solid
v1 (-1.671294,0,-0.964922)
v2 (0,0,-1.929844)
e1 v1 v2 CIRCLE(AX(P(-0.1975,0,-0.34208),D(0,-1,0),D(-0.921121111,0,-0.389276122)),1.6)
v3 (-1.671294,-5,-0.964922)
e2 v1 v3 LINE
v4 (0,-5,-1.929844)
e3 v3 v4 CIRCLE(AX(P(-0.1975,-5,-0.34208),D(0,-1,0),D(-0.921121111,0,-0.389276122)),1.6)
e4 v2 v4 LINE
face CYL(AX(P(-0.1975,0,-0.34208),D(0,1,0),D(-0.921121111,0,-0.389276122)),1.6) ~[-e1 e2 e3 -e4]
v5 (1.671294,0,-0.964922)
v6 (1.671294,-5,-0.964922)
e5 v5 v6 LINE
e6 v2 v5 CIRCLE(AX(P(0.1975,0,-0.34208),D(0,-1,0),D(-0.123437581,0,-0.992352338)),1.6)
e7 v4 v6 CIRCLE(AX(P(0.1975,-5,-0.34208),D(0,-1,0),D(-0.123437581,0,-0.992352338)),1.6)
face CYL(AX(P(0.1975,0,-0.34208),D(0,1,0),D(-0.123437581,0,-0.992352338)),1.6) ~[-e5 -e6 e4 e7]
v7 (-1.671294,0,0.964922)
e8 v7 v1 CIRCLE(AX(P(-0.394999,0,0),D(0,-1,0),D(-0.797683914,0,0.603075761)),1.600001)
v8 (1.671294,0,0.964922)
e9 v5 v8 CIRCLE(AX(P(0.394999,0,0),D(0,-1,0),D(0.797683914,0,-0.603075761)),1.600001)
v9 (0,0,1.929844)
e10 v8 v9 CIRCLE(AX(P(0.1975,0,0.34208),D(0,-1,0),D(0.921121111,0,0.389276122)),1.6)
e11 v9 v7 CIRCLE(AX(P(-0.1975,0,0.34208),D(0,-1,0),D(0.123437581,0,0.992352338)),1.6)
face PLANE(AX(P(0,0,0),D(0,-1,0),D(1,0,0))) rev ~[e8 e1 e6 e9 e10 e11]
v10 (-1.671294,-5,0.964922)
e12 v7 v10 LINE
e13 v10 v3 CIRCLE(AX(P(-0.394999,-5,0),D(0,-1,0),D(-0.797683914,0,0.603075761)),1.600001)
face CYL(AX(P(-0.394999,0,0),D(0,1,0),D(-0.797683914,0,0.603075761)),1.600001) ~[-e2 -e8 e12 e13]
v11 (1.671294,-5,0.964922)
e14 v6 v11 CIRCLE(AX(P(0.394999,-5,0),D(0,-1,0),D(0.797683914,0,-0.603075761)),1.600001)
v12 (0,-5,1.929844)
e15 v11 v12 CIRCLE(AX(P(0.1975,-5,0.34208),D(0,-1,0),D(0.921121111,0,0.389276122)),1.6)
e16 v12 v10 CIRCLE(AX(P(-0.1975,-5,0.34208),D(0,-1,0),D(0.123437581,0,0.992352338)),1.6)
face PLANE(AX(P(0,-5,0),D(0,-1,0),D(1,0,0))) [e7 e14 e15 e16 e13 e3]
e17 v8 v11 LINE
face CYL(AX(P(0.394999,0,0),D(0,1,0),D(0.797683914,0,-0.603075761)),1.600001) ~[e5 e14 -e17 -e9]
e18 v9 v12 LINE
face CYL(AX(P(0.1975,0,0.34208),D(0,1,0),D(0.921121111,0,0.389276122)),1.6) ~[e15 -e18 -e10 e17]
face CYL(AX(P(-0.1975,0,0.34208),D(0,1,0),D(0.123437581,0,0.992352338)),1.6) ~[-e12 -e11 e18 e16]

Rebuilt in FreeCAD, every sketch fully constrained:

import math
import FreeCAD as App
import Part
import Sketcher
from FreeCAD import Vector
Q = App.Units.Quantity

doc = App.newDocument("Part")
body = doc.addObject("PartDesign::Body", "Body")

# Sketch on XZ plane
sketch1 = body.newObject("Sketcher::SketchObject", "Sketch")
sketch1.AttachmentSupport = (doc.getObject("XZ_Plane"), [""])
sketch1.MapMode = "FlatFace"
sketch1.addGeometry(Part.ArcOfCircle(Part.Circle(Vector(0.2, 0.3, 0), Vector(0, 0, 1), 1.6), math.radians(23), math.radians(97)), False)
sketch1.addGeometry(Part.ArcOfCircle(Part.Circle(Vector(-0.2, 0.3, 0), Vector(0, 0, 1), 1.6), math.radians(83), math.radians(157)), False)
sketch1.addGeometry(Part.ArcOfCircle(Part.Circle(Vector(-0.4, 0, 0), Vector(0, 0, 1), 1.6), math.radians(143), math.radians(217)), False)
sketch1.addGeometry(Part.ArcOfCircle(Part.Circle(Vector(-0.2, -0.3, 0), Vector(0, 0, 1), 1.6), math.radians(-157), math.radians(-83)), False)
sketch1.addGeometry(Part.ArcOfCircle(Part.Circle(Vector(0.2, -0.3, 0), Vector(0, 0, 1), 1.6), math.radians(-97), math.radians(-23)), False)
sketch1.addGeometry(Part.ArcOfCircle(Part.Circle(Vector(0.4, 0, 0), Vector(0, 0, 1), 1.6), math.radians(-37), math.radians(37)), False)
sketch1.addConstraint(Sketcher.Constraint("Coincident", 0, 2, 1, 1))
sketch1.addConstraint(Sketcher.Constraint("Coincident", 1, 2, 2, 1))
sketch1.addConstraint(Sketcher.Constraint("Coincident", 2, 2, 3, 1))
sketch1.addConstraint(Sketcher.Constraint("Coincident", 3, 2, 4, 1))
sketch1.addConstraint(Sketcher.Constraint("Coincident", 4, 2, 5, 1))
sketch1.addConstraint(Sketcher.Constraint("Coincident", 5, 2, 0, 1))
sketch1.addConstraint(Sketcher.Constraint("Equal", 0, 1))
sketch1.addConstraint(Sketcher.Constraint("Equal", 1, 2))
sketch1.addConstraint(Sketcher.Constraint("Equal", 2, 3))
sketch1.addConstraint(Sketcher.Constraint("Equal", 3, 4))
sketch1.addConstraint(Sketcher.Constraint("Equal", 4, 5))
sketch1.addConstraint(Sketcher.Constraint("Symmetric", 0, 3, 3, 3, -1, 1))
sketch1.addConstraint(Sketcher.Constraint("Symmetric", 1, 3, 4, 3, -1, 1))
sketch1.addConstraint(Sketcher.Constraint("Symmetric", 2, 3, 5, 3, -1, 1))
sketch1.addConstraint(Sketcher.Constraint("Symmetric", 0, 3, 1, 3, -2))
sketch1.addConstraint(Sketcher.Constraint("PointOnObject", 2, 3, -1))
sketch1.addConstraint(Sketcher.Constraint("Radius", 0, Q("1.6 mm")))
sketch1.addConstraint(Sketcher.Constraint("DistanceX", 2, 3, -1, 1, Q("0.394999 mm")))
sketch1.addConstraint(Sketcher.Constraint("DistanceX", 1, 3, 0, 3, Q("0.395 mm")))
sketch1.addConstraint(Sketcher.Constraint("DistanceY", -1, 1, 0, 3, Q("0.34208 mm")))
pad1 = body.newObject("PartDesign::Pad", "Pad")
pad1.Profile = sketch1
pad1.Length = 5

doc.recompute()
